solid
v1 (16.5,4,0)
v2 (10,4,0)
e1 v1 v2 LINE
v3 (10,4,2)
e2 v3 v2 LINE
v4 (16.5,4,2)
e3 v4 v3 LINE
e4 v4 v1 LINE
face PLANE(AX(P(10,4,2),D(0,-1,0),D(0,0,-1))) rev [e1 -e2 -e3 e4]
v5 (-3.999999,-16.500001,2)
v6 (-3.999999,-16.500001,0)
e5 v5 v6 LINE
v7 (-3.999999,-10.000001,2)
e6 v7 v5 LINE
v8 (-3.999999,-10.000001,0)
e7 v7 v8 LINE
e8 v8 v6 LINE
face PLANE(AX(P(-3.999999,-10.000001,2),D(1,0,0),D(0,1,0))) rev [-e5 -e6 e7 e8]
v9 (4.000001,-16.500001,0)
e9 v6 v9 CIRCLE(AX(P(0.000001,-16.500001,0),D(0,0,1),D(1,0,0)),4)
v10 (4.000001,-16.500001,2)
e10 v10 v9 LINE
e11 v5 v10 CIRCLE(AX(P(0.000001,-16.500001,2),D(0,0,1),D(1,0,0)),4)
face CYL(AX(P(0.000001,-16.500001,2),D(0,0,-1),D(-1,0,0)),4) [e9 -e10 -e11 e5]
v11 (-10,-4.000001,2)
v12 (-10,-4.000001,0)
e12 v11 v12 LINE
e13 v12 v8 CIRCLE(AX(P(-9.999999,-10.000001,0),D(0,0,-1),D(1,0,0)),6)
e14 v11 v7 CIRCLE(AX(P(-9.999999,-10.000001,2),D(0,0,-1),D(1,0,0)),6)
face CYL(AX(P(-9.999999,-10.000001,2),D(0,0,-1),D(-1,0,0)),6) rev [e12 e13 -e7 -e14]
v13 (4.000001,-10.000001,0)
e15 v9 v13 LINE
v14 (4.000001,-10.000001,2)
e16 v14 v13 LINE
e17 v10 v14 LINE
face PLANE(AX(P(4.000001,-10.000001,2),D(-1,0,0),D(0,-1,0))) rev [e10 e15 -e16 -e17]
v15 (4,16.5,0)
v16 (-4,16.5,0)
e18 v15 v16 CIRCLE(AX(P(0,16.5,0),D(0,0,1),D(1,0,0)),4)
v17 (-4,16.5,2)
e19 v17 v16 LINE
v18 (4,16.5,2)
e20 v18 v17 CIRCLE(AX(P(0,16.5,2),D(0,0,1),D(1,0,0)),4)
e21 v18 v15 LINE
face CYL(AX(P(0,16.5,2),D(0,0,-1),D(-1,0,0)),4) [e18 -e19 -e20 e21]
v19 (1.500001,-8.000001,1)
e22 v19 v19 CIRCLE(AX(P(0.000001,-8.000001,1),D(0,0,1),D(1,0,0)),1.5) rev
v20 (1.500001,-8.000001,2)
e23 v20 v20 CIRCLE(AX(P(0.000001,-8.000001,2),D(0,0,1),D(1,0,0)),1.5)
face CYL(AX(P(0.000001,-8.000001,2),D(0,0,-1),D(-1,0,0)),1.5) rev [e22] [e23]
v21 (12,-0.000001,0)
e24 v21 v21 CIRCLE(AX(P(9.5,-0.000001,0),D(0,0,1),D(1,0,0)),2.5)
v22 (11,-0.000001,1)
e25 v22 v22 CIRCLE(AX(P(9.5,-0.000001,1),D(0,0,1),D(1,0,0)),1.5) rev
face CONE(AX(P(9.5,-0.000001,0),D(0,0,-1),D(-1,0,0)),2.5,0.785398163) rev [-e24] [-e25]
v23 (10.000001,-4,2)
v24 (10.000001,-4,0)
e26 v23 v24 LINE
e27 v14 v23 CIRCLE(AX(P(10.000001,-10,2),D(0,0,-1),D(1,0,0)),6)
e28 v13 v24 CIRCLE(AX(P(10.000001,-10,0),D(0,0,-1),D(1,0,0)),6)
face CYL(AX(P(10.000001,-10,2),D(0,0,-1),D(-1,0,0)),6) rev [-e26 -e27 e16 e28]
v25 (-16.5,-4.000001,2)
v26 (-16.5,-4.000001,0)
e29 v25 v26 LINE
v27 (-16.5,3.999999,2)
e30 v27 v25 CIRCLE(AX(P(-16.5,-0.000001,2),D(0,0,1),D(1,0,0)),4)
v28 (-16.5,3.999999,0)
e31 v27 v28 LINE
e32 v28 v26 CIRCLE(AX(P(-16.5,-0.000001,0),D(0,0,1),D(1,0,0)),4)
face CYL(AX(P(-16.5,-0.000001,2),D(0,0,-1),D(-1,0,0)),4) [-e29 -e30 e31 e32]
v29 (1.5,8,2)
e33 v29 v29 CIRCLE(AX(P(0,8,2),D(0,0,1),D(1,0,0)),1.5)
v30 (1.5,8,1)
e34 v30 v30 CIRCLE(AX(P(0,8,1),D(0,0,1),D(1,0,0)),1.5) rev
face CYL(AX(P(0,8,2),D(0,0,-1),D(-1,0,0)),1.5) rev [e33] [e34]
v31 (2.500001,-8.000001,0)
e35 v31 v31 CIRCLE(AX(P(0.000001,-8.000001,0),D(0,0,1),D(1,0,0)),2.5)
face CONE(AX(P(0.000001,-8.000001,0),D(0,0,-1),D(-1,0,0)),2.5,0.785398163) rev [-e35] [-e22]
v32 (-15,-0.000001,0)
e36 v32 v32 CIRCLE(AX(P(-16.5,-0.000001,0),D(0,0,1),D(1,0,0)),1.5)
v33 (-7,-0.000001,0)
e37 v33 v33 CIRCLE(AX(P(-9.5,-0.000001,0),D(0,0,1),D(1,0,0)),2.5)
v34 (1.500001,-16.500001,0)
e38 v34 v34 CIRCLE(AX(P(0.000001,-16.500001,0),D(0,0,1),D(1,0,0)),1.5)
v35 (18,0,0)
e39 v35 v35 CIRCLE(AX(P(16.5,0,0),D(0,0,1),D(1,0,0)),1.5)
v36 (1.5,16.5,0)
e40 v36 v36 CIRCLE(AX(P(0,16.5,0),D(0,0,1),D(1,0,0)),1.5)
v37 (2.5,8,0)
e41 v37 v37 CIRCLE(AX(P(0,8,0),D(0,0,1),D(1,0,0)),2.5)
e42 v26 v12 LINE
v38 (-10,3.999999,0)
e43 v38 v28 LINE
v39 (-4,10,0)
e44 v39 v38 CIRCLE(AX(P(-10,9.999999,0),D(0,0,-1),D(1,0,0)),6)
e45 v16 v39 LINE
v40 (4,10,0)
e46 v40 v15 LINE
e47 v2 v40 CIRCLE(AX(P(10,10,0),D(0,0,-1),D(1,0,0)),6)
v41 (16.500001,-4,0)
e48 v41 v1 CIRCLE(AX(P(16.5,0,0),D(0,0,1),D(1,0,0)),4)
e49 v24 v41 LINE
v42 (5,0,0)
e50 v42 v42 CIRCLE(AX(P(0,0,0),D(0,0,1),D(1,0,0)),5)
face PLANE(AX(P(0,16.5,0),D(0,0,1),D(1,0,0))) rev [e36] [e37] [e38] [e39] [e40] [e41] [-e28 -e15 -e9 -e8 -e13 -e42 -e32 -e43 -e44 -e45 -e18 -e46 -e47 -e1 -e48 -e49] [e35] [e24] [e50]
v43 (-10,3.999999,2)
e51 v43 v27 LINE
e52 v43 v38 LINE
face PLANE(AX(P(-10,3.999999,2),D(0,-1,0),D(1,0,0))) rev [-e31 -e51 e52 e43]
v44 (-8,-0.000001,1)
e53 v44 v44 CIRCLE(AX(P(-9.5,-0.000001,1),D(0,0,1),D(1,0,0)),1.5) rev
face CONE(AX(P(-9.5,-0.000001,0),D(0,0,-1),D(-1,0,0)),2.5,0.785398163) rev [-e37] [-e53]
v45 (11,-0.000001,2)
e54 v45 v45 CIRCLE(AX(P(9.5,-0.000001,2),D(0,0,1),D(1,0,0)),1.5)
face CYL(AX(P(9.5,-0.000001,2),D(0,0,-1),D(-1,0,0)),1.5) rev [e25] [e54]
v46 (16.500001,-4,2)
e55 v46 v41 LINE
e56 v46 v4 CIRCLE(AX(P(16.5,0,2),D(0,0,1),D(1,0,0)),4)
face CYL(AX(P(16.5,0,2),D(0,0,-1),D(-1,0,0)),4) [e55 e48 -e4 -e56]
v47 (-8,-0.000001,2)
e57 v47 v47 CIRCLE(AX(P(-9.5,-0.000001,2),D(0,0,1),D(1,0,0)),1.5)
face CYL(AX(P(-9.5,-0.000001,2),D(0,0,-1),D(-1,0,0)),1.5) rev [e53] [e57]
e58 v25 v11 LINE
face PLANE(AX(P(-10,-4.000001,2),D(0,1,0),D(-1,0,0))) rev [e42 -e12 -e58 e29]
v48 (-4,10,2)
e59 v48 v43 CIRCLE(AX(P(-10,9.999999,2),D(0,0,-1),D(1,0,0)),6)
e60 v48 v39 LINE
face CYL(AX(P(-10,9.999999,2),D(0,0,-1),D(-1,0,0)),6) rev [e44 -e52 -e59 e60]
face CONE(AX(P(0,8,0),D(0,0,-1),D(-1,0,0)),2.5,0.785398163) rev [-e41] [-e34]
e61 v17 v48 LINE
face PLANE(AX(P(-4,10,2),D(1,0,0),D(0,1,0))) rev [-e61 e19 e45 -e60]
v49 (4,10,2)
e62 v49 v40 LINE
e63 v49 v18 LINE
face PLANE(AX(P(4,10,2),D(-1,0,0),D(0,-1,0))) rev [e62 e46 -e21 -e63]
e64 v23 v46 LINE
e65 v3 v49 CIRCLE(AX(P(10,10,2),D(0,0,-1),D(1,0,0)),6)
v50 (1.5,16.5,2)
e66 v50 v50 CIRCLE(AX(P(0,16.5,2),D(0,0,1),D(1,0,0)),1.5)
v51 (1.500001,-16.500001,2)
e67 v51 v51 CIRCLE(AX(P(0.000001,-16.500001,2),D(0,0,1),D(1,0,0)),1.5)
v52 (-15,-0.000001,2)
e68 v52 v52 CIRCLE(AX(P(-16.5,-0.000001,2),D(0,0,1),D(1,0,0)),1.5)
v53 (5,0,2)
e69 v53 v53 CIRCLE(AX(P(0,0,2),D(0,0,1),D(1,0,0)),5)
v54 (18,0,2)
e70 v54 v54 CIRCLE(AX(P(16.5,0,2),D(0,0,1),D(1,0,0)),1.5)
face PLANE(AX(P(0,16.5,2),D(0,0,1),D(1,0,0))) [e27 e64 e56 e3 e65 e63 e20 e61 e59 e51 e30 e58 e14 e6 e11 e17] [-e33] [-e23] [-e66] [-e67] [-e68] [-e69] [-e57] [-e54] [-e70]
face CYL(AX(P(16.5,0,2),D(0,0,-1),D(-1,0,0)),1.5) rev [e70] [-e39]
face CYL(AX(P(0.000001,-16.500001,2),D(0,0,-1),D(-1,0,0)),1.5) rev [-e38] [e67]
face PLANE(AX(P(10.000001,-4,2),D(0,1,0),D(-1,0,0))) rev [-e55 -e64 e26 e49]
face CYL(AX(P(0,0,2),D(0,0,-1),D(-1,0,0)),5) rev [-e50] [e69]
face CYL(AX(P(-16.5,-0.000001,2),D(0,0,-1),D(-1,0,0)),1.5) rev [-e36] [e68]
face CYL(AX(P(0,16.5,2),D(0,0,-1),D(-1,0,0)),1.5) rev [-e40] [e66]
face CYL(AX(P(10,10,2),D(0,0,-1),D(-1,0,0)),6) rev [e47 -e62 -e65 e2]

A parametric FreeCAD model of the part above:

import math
import FreeCAD as App
import Part
import Sketcher
from FreeCAD import Vector
Q = App.Units.Quantity


def edges_at(feature, points):
    """Names of the edges that pass closest to the given points."""
    edges = feature.Shape.Edges
    near = lambda p: min(range(len(edges)), key=lambda i: edges[i].distToShape(Part.Vertex(*p))[0])
    return sorted({f"Edge{near(p) + 1}" for p in points})

doc = App.newDocument("Part")
params = doc.addObject("Spreadsheet::Sheet", "Params")
for row, (alias, value) in enumerate([
    ("sketch1_diameter", "3 mm"),
    ("sketch1_diameter2", "10 mm"),
    ("sketch1_radius", "6 mm"),
    ("sketch1_radius2", "4 mm"),
    ("sketch1_width", "6.5 mm"),
    ("pad1_length", "2 mm"),
    ("chamfer_size", "1 mm"),
], start=1):
    params.set(f"A{row}", alias)
    params.set(f"B{row}", "=" + value)
    params.setAlias(f"B{row}", alias)

body = doc.addObject("PartDesign::Body", "Body")

sketch1 = body.newObject("Sketcher::SketchObject", "Sketch")
sketch1.AttachmentSupport = (doc.getObject("XY_Plane"), [""])
sketch1.MapMode = "FlatFace"
sketch1.addGeometry(Part.LineSegment(Vector(16.5, 4, 0), Vector(10, 4, 0)), False)
sketch1.addGeometry(Part.ArcOfCircle(Part.Circle(Vector(10, 10, 0), Vector(0, 0, 1), 6), math.radians(180), math.radians(270)), False)
sketch1.addGeometry(Part.LineSegment(Vector(4, 10, 0), Vector(4, 16.5, 0)), False)
sketch1.addGeometry(Part.ArcOfCircle(Part.Circle(Vector(0, 16.5, 0), Vector(0, 0, 1), 4), math.radians(0), math.radians(180)), False)
sketch1.addGeometry(Part.LineSegment(Vector(-4, 16.5, 0), Vector(-4, 10, 0)), False)
sketch1.addGeometry(Part.ArcOfCircle(Part.Circle(Vector(-10, 10, 0), Vector(0, 0, 1), 6), math.radians(-90), math.radians(0)), False)
sketch1.addGeometry(Part.LineSegment(Vector(-10, 4, 0), Vector(-16.5, 4, 0)), False)
sketch1.addGeometry(Part.ArcOfCircle(Part.Circle(Vector(-16.5, 0, 0), Vector(0, 0, 1), 4), math.radians(90), math.radians(270)), False)
sketch1.addGeometry(Part.LineSegment(Vector(-16.5, -4, 0), Vector(-10, -4, 0)), False)
sketch1.addGeometry(Part.ArcOfCircle(Part.Circle(Vector(-10, -10, 0), Vector(0, 0, 1), 6), math.radians(0), math.radians(90)), False)
sketch1.addGeometry(Part.LineSegment(Vector(-4, -10, 0), Vector(-4, -16.5, 0)), False)
sketch1.addGeometry(Part.ArcOfCircle(Part.Circle(Vector(0, -16.5, 0), Vector(0, 0, 1), 4), math.radians(180), math.radians(360)), False)
sketch1.addGeometry(Part.LineSegment(Vector(4, -16.5, 0), Vector(4, -10, 0)), False)
sketch1.addGeometry(Part.ArcOfCircle(Part.Circle(Vector(10, -10, 0), Vector(0, 0, 1), 6), math.radians(90), math.radians(180)), False)
sketch1.addGeometry(Part.LineSegment(Vector(10, -4, 0), Vector(16.5, -4, 0)), False)
sketch1.addGeometry(Part.ArcOfCircle(Part.Circle(Vector(16.5, 0, 0), Vector(0, 0, 1), 4), math.radians(-90), math.radians(90)), False)
sketch1.addGeometry(Part.Circle(Vector(0, -16.5, 0), Vector(0, 0, 1), 1.5), False)
sketch1.addGeometry(Part.Circle(Vector(9.5, 0, 0), Vector(0, 0, 1), 1.5), False)
sketch1.addGeometry(Part.Circle(Vector(0, -8, 0), Vector(0, 0, 1), 1.5), False)
sketch1.addGeometry(Part.Circle(Vector(-9.5, 0, 0), Vector(0, 0, 1), 1.5), False)
sketch1.addGeometry(Part.Circle(Vector(-16.5, 0, 0), Vector(0, 0, 1), 1.5), False)
sketch1.addGeometry(Part.Circle(Vector(16.5, 0, 0), Vector(0, 0, 1), 1.5), False)
sketch1.addGeometry(Part.Circle(Vector(0, 0, 0), Vector(0, 0, 1), 5), False)
sketch1.addGeometry(Part.Circle(Vector(0, 8, 0), Vector(0, 0, 1), 1.5), False)
sketch1.addGeometry(Part.Circle(Vector(0, 16.5, 0), Vector(0, 0, 1), 1.5), False)
sketch1.addConstraint(Sketcher.Constraint("Tangent", 0, 2, 1, 2))
sketch1.addConstraint(Sketcher.Constraint("Tangent", 1, 1, 2, 1))
sketch1.addConstraint(Sketcher.Constraint("Tangent", 2, 2, 3, 1))
sketch1.addConstraint(Sketcher.Constraint("Tangent", 3, 2, 4, 1))
sketch1.addConstraint(Sketcher.Constraint("Tangent", 4, 2, 5, 2))
sketch1.addConstraint(Sketcher.Constraint("Tangent", 5, 1, 6, 1))
sketch1.addConstraint(Sketcher.Constraint("Tangent", 6, 2, 7, 1))
sketch1.addConstraint(Sketcher.Constraint("Tangent", 7, 2, 8, 1))
sketch1.addConstraint(Sketcher.Constraint("Tangent", 8, 2, 9, 2))
sketch1.addConstraint(Sketcher.Constraint("Tangent", 9, 1, 10, 1))
sketch1.addConstraint(Sketcher.Constraint("Tangent", 10, 2, 11, 1))
sketch1.addConstraint(Sketcher.Constraint("Tangent", 11, 2, 12, 1))
sketch1.addConstraint(Sketcher.Constraint("Tangent", 12, 2, 13, 2))
sketch1.addConstraint(Sketcher.Constraint("Tangent", 13, 1, 14, 1))
sketch1.addConstraint(Sketcher.Constraint("Tangent", 14, 2, 15, 1))
sketch1.addConstraint(Sketcher.Constraint("Tangent", 15, 2, 0, 1))
sketch1.addConstraint(Sketcher.Constraint("Horizontal", 0))
sketch1.addConstraint(Sketcher.Constraint("Vertical", 2))
sketch1.addConstraint(Sketcher.Constraint("Vertical", 4))
sketch1.addConstraint(Sketcher.Constraint("Horizontal", 6))
sketch1.addConstraint(Sketcher.Constraint("Horizontal", 8))
sketch1.addConstraint(Sketcher.Constraint("Vertical", 10))
sketch1.addConstraint(Sketcher.Constraint("Vertical", 12))
sketch1.addConstraint(Sketcher.Constraint("Horizontal", 14))
sketch1.addConstraint(Sketcher.Constraint("Coincident", 22, 3, -1, 1))
sketch1.addConstraint(Sketcher.Constraint("Coincident", 16, 3, 11, 3))
sketch1.addConstraint(Sketcher.Constraint("Coincident", 20, 3, 7, 3))
sketch1.addConstraint(Sketcher.Constraint("Coincident", 21, 3, 15, 3))
sketch1.addConstraint(Sketcher.Constraint("Coincident", 24, 3, 3, 3))
sketch1.addConstraint(Sketcher.Constraint("Equal", 1, 5))
sketch1.addConstraint(Sketcher.Constraint("Equal", 3, 7))
sketch1.addConstraint(Sketcher.Constraint("Equal", 5, 9))
sketch1.addConstraint(Sketcher.Constraint("Equal", 7, 11))
sketch1.addConstraint(Sketcher.Constraint("Equal", 9, 13))
sketch1.addConstraint(Sketcher.Constraint("Equal", 11, 15))
sketch1.addConstraint(Sketcher.Constraint("Equal", 16, 17))
sketch1.addConstraint(Sketcher.Constraint("Equal", 17, 18))
sketch1.addConstraint(Sketcher.Constraint("Equal", 18, 19))
sketch1.addConstraint(Sketcher.Constraint("Equal", 19, 20))
sketch1.addConstraint(Sketcher.Constraint("Equal", 20, 21))
sketch1.addConstraint(Sketcher.Constraint("Equal", 21, 23))
sketch1.addConstraint(Sketcher.Constraint("Equal", 23, 24))
sketch1.addConstraint(Sketcher.Constraint("Symmetric", 1, 3, 9, 3, -1, 1))
sketch1.addConstraint(Sketcher.Constraint("Symmetric", 17, 3, 19, 3, -1, 1))
sketch1.addConstraint(Sketcher.Constraint("Symmetric", 18, 3, 23, 3, -1, 1))
sketch1.addConstraint(Sketcher.Constraint("Symmetric", 1, 3, 5, 3, -2))
sketch1.addConstraint(Sketcher.Constraint("PointOnObject", 17, 3, -1))
sketch1.addConstraint(Sketcher.Constraint("PointOnObject", 18, 3, -2))
sketch1.addConstraint(Sketcher.Constraint("Equal", 0, 6))
sketch1.addConstraint(Sketcher.Constraint("Equal", 14, 2))
sketch1.addConstraint(Sketcher.Constraint("Equal", 4, 10))
sketch1.addConstraint(Sketcher.Constraint("Diameter", 16, Q("3 mm")))
sketch1.addConstraint(Sketcher.Constraint("Diameter", 22, Q("10 mm")))
sketch1.addConstraint(Sketcher.Constraint("Radius", 1, Q("6 mm")))
sketch1.addConstraint(Sketcher.Constraint("Radius", 3, Q("4 mm")))
sketch1.addConstraint(Sketcher.Constraint("DistanceX", 0, 2, 0, 1, Q("6.5 mm")))
sketch1.addConstraint(Sketcher.Constraint("DistanceY", 18, 3, -1, 1, Q("8.000001 mm")))
sketch1.addConstraint(Sketcher.Constraint("DistanceX", 17, 3, 15, 3, Q("7 mm")))
sketch1.setExpression("Constraints[51]", "Params.sketch1_diameter")
sketch1.setExpression("Constraints[52]", "Params.sketch1_diameter2")
sketch1.setExpression("Constraints[53]", "Params.sketch1_radius")
sketch1.setExpression("Constraints[54]", "Params.sketch1_radius2")
sketch1.setExpression("Constraints[55]", "Params.sketch1_width")
pad1 = body.newObject("PartDesign::Pad", "Pad")
pad1.Profile = sketch1
pad1.setExpression("Length", "Params.pad1_length")
doc.recompute()

chamfer = body.newObject("PartDesign::Chamfer", "Chamfer")
chamfer.Base = (pad1, edges_at(pad1, [
    (-1.5, 8, 0),
    (8, 0, 0),
    (-1.5, -8, 0),
    (-11, 0, 0),
]))
chamfer.setExpression("Size", "Params.chamfer_size")

doc.recompute()
